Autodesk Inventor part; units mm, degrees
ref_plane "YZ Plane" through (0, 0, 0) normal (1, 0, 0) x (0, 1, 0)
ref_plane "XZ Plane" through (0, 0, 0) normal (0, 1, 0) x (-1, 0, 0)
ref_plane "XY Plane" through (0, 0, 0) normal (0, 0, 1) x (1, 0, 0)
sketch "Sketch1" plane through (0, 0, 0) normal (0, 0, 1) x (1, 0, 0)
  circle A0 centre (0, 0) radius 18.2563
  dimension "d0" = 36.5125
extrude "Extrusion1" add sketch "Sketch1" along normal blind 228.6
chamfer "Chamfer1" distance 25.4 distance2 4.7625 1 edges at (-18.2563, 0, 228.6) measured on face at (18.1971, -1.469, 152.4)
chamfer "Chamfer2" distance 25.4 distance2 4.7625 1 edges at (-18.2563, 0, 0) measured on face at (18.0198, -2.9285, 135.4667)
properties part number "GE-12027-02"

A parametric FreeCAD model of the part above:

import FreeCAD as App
import Part
import Sketcher

V = App.Vector
Q = App.Units.Quantity


def edges_at(feature, points):
    """Names of the edges that pass closest to the given points."""
    edges = feature.Shape.Edges
    near = lambda p: min(range(len(edges)), key=lambda i: edges[i].distToShape(Part.Vertex(*p))[0])
    return sorted({f"Edge{near(p) + 1}" for p in points})

doc = App.newDocument("Part")
body = doc.addObject("PartDesign::Body", "Body")

sketch1 = body.newObject("Sketcher::SketchObject", "Sketch")
sketch1.AttachmentSupport = (doc.getObject("XY_Plane"), [""])
sketch1.MapMode = "FlatFace"
sketch1.addGeometry(Part.Circle(V(0, 0, 0), V(0, 0, 1), 18.2563), False)
sketch1.addConstraint(Sketcher.Constraint("Coincident", 0, 3, -1, 1))
sketch1.addConstraint(Sketcher.Constraint("Diameter", 0, Q("1.4375 in")))
pad1 = body.newObject("PartDesign::Pad", "Pad")
pad1.Profile = sketch1
pad1.Length = Q("9 in")
doc.recompute()

chamfer = body.newObject("PartDesign::Chamfer", "Chamfer")
chamfer.Base = (pad1, edges_at(pad1, [(-18.256, 0, 228.6)]))
chamfer.ChamferType = "Two distances"
chamfer.Size = Q("1 in")
chamfer.Size2 = Q("0.1875 in")
doc.recompute()

chamfer2 = body.newObject("PartDesign::Chamfer", "Chamfer001")
chamfer2.Base = (chamfer, edges_at(chamfer, [(-18.256, 0, 0)]))
chamfer2.ChamferType = "Two distances"
chamfer2.Size = Q("1 in")
chamfer2.Size2 = Q("0.1875 in")

doc.recompute()
